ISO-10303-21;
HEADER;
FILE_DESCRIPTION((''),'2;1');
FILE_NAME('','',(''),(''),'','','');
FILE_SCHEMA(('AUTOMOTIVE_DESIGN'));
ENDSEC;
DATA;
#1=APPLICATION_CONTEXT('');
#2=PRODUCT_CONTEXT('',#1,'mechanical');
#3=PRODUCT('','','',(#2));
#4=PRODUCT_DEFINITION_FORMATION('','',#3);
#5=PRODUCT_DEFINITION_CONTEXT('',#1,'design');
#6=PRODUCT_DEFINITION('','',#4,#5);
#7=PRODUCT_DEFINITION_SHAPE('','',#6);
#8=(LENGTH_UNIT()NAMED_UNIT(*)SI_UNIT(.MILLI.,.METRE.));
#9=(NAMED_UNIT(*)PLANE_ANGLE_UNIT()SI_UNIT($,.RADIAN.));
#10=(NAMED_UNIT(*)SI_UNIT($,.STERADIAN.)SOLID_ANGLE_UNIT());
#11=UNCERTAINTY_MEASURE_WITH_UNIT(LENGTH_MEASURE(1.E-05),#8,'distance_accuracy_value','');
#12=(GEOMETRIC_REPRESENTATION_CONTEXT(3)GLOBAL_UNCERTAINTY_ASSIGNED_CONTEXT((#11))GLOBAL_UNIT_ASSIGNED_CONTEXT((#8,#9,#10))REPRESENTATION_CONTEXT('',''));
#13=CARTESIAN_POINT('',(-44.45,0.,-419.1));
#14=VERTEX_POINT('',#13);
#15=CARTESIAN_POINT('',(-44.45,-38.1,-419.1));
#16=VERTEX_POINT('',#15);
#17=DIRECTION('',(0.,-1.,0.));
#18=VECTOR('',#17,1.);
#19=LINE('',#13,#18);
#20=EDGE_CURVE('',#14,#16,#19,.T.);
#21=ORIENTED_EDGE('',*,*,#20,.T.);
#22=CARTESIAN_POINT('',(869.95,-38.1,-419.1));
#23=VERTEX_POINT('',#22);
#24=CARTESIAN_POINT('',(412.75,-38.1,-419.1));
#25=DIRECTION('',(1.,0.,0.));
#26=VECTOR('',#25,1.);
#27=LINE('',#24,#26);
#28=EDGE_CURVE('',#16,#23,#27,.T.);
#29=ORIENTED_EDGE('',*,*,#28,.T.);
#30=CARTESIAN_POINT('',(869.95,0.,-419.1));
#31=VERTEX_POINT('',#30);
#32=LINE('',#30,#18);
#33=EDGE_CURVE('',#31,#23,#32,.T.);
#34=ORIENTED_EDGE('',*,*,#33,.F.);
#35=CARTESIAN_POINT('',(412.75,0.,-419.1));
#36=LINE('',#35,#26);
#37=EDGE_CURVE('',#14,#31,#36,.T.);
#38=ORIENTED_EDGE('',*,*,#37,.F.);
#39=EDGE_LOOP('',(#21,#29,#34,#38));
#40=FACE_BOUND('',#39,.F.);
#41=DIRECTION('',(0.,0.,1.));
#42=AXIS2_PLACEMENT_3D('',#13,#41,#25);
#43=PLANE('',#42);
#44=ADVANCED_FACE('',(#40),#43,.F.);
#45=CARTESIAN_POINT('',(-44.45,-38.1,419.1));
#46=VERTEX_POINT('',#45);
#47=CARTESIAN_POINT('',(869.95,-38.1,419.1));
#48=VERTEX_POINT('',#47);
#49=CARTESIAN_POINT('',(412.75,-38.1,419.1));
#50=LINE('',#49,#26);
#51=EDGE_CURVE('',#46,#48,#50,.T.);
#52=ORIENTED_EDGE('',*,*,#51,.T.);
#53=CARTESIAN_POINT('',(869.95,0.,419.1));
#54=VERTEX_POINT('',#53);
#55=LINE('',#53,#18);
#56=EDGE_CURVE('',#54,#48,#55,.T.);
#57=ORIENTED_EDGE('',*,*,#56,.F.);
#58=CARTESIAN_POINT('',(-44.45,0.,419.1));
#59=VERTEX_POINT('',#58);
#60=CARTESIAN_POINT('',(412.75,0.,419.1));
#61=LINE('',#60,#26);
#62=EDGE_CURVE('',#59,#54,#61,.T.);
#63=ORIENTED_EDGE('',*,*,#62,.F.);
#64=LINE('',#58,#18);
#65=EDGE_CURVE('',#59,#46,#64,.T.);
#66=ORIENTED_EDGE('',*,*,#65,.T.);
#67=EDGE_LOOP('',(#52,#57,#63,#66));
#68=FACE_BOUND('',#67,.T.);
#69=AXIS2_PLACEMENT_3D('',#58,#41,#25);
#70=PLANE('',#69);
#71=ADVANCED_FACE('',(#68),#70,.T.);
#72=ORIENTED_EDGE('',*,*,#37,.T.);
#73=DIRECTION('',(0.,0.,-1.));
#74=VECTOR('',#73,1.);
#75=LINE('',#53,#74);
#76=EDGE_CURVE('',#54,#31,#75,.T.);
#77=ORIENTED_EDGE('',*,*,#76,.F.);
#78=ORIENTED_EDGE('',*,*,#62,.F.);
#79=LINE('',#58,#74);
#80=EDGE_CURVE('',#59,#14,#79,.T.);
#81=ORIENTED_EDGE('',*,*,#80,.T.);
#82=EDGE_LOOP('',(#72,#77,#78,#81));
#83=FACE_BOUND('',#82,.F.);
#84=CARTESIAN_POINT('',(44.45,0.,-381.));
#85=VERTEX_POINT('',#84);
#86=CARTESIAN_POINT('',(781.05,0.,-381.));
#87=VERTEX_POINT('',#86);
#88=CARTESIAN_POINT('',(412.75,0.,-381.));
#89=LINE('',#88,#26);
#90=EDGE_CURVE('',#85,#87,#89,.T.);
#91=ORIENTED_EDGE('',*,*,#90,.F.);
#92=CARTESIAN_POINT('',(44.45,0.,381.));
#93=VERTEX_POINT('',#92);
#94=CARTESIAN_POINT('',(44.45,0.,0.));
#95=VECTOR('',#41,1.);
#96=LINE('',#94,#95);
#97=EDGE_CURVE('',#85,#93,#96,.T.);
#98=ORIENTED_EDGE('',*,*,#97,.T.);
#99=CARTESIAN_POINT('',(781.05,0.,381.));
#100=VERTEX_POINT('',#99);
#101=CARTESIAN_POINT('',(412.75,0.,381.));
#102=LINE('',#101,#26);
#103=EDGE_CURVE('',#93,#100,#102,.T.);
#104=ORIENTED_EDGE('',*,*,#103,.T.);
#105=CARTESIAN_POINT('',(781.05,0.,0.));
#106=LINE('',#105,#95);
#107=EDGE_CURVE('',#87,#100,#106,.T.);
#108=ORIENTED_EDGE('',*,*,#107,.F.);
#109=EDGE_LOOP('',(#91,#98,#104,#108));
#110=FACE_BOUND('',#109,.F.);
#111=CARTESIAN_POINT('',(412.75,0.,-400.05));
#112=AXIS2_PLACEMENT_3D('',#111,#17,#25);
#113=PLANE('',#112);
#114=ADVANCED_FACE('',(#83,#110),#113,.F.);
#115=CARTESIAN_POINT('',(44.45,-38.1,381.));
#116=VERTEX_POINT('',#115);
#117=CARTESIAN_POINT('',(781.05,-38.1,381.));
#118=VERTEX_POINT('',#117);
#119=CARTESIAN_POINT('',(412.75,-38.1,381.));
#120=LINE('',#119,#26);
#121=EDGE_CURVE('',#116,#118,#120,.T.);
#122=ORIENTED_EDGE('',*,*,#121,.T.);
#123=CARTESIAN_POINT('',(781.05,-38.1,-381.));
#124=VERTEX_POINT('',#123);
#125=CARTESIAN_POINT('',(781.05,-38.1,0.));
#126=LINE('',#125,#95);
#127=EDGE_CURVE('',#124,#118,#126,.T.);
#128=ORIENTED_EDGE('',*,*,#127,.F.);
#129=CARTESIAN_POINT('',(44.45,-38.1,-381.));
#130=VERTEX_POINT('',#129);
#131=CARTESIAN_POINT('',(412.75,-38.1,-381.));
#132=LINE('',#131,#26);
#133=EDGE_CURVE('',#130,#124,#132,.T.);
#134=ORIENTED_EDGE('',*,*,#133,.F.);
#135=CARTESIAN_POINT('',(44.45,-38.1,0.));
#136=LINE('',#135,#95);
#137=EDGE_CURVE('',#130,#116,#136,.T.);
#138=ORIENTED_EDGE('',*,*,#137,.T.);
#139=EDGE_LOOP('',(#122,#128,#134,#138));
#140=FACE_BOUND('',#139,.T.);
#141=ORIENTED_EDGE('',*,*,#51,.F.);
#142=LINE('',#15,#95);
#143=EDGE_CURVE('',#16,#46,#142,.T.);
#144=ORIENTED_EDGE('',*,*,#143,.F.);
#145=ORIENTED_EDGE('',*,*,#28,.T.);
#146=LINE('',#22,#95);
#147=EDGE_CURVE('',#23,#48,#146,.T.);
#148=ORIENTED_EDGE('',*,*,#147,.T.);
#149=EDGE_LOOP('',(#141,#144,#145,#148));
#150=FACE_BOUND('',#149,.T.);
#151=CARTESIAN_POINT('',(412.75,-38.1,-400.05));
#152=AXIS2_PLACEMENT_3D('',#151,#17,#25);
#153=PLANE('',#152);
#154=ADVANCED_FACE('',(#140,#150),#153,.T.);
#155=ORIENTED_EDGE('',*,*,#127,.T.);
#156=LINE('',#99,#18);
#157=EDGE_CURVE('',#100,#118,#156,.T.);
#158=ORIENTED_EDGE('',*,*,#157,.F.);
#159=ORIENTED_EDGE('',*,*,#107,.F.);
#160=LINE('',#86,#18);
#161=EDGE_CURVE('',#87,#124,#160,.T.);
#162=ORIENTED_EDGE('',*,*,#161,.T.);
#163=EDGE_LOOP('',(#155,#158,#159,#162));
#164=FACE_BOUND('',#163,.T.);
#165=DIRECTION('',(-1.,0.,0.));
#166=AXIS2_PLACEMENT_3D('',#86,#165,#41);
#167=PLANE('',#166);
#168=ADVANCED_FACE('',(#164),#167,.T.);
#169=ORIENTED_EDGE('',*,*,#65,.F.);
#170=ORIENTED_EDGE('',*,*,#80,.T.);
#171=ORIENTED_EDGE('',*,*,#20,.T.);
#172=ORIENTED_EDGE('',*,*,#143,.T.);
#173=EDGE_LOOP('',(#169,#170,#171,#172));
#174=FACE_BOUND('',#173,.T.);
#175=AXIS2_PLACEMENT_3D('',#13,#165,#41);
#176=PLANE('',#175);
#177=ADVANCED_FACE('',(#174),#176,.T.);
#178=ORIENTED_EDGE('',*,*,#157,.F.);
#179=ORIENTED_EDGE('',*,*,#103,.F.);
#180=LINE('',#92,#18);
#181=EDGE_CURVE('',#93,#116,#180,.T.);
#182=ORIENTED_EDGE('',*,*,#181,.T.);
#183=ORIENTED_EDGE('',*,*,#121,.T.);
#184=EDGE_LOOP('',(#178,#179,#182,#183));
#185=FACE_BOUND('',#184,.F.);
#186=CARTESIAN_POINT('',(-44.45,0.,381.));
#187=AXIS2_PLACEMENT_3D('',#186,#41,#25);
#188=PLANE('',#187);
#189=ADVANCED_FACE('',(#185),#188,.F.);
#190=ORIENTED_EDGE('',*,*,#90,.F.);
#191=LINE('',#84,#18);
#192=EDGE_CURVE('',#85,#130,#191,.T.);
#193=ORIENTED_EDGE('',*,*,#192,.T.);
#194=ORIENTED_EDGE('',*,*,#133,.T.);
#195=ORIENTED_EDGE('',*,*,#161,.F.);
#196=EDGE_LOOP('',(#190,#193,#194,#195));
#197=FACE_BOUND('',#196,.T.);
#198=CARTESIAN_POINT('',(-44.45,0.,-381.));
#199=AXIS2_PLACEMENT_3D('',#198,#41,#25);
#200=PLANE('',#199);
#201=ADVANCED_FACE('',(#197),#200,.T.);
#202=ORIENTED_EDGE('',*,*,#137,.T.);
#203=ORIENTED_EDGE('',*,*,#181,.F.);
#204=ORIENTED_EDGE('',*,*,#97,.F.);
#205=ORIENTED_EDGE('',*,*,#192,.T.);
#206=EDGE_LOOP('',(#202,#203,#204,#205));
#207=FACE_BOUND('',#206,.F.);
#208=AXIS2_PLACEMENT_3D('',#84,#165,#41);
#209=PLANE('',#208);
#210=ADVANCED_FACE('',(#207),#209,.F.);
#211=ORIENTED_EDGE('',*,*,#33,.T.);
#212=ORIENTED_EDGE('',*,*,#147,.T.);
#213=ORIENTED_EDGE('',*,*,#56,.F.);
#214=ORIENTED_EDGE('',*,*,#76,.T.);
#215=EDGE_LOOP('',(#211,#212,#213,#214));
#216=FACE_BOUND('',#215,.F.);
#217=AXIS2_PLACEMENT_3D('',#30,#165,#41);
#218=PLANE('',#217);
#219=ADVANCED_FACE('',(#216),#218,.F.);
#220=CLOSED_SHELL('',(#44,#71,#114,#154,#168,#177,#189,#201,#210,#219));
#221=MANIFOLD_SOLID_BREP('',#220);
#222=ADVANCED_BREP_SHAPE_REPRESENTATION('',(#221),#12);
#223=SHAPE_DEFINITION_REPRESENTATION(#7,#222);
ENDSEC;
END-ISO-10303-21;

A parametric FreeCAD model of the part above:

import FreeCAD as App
import Part
import Sketcher

V = App.Vector
Q = App.Units.Quantity

doc = App.newDocument("Part")
body = doc.addObject("PartDesign::Body", "Body")

sketch1 = doc.addObject("Sketcher::SketchObject", "Sketch")
body.addObject(sketch1)
sketch1.AttachmentSupport = (doc.XZ_Plane, [""])
sketch1.MapMode = "FlatFace"
sketch1.addGeometry([
    Part.LineSegment(V(-44.45, 381, 0), V(-44.45, -381, 0)),
    Part.LineSegment(V(-44.45, -381, 0), V(44.45, -381, 0)),
    Part.LineSegment(V(44.45, -381, 0), V(44.45, 381, 0)),
    Part.LineSegment(V(44.45, 381, 0), V(-44.45, 381, 0)),
], False)
sketch1.addConstraint([
    Sketcher.Constraint("Coincident", 0, 2, 1, 1),
    Sketcher.Constraint("Coincident", 1, 2, 2, 1),
    Sketcher.Constraint("Coincident", 2, 2, 3, 1),
    Sketcher.Constraint("Coincident", 3, 2, 0, 1),
    Sketcher.Constraint("Vertical", 0),
    Sketcher.Constraint("Horizontal", 1),
    Sketcher.Constraint("Vertical", 2),
    Sketcher.Constraint("Horizontal", 3),
    Sketcher.Constraint("Symmetric", 0, 2, 2, 2, -1, 1),
    Sketcher.Constraint("DistanceY", 0, 2, 0, 1, Q("30 in")),
    Sketcher.Constraint("DistanceX", 1, 1, 1, 2, Q("3.5 in")),
])
pad1 = doc.addObject("PartDesign::Pad", "Pad")
body.addObject(pad1)
pad1.Profile = sketch1
pad1.Length = Q("1.5 in")

sketch2 = doc.addObject("Sketcher::SketchObject", "Sketch001")
body.addObject(sketch2)
sketch2.AttachmentSupport = (doc.XZ_Plane, [""])
sketch2.MapMode = "FlatFace"
sketch2.addGeometry([
    Part.LineSegment(V(-44.45, 419.1, 0), V(-44.45, 381, 0)),
    Part.LineSegment(V(-44.45, 381, 0), V(869.95, 381, 0)),
    Part.LineSegment(V(869.95, 381, 0), V(869.95, 419.1, 0)),
    Part.LineSegment(V(869.95, 419.1, 0), V(-44.45, 419.1, 0)),
], False)
sketch2.addConstraint([
    Sketcher.Constraint("Coincident", 0, 2, 1, 1),
    Sketcher.Constraint("Coincident", 1, 2, 2, 1),
    Sketcher.Constraint("Coincident", 2, 2, 3, 1),
    Sketcher.Constraint("Coincident", 3, 2, 0, 1),
    Sketcher.Constraint("Vertical", 0),
    Sketcher.Constraint("Horizontal", 1),
    Sketcher.Constraint("Vertical", 2),
    Sketcher.Constraint("Horizontal", 3),
    Sketcher.Constraint("DistanceX", 1, 1, 1, 2, Q("36 in")),
    Sketcher.Constraint("DistanceY", 0, 2, 0, 1, Q("1.5 in")),
    Sketcher.Constraint("DistanceY", -1, 1, 0, 2, Q("15 in")),
    Sketcher.Constraint("DistanceX", 0, 2, -1, 1, Q("1.75 in")),
])
pad2 = doc.addObject("PartDesign::Pad", "Pad001")
body.addObject(pad2)
pad2.Profile = sketch2
pad2.Length = Q("1.5 in")

sketch3 = doc.addObject("Sketcher::SketchObject", "Sketch002")
body.addObject(sketch3)
sketch3.AttachmentSupport = (doc.XZ_Plane, [""])
sketch3.MapMode = "FlatFace"
sketch3.addGeometry([
    Part.LineSegment(V(781.05, 381, 0), V(781.05, -381, 0)),
    Part.LineSegment(V(781.05, -381, 0), V(869.95, -381, 0)),
    Part.LineSegment(V(869.95, -381, 0), V(869.95, 381, 0)),
    Part.LineSegment(V(869.95, 381, 0), V(781.05, 381, 0)),
], False)
sketch3.addConstraint([
    Sketcher.Constraint("Coincident", 0, 2, 1, 1),
    Sketcher.Constraint("Coincident", 1, 2, 2, 1),
    Sketcher.Constraint("Coincident", 2, 2, 3, 1),
    Sketcher.Constraint("Coincident", 3, 2, 0, 1),
    Sketcher.Constraint("Vertical", 0),
    Sketcher.Constraint("Horizontal", 1),
    Sketcher.Constraint("Vertical", 2),
    Sketcher.Constraint("Horizontal", 3),
    Sketcher.Constraint("DistanceY", 0, 2, 0, 1, Q("30 in")),
    Sketcher.Constraint("DistanceX", 1, 1, 1, 2, Q("3.5 in")),
    Sketcher.Constraint("DistanceY", 0, 2, -1, 1, Q("15 in")),
    Sketcher.Constraint("DistanceX", -1, 1, 0, 2, Q("30.75 in")),
])
pad3 = doc.addObject("PartDesign::Pad", "Pad002")
body.addObject(pad3)
pad3.Profile = sketch3
pad3.Length = Q("1.5 in")

sketch4 = doc.addObject("Sketcher::SketchObject", "Sketch003")
body.addObject(sketch4)
sketch4.AttachmentSupport = (doc.XZ_Plane, [""])
sketch4.MapMode = "FlatFace"
sketch4.addGeometry([
    Part.LineSegment(V(-44.45, -381, 0), V(-44.45, -419.1, 0)),
    Part.LineSegment(V(-44.45, -419.1, 0), V(869.95, -419.1, 0)),
    Part.LineSegment(V(869.95, -419.1, 0), V(869.95, -381, 0)),
    Part.LineSegment(V(869.95, -381, 0), V(-44.45, -381, 0)),
], False)
sketch4.addConstraint([
    Sketcher.Constraint("Coincident", 0, 2, 1, 1),
    Sketcher.Constraint("Coincident", 1, 2, 2, 1),
    Sketcher.Constraint("Coincident", 2, 2, 3, 1),
    Sketcher.Constraint("Coincident", 3, 2, 0, 1),
    Sketcher.Constraint("Vertical", 0),
    Sketcher.Constraint("Horizontal", 1),
    Sketcher.Constraint("Vertical", 2),
    Sketcher.Constraint("Horizontal", 3),
    Sketcher.Constraint("DistanceX", 1, 1, 1, 2, Q("36 in")),
    Sketcher.Constraint("DistanceY", 0, 2, 0, 1, Q("1.5 in")),
    Sketcher.Constraint("DistanceY", 2, 2, -1, 1, Q("15 in")),
    Sketcher.Constraint("DistanceX", 0, 2, -1, 1, Q("1.75 in")),
])
pad4 = doc.addObject("PartDesign::Pad", "Pad003")
body.addObject(pad4)
pad4.Profile = sketch4
pad4.Length = Q("1.5 in")

doc.recompute()
